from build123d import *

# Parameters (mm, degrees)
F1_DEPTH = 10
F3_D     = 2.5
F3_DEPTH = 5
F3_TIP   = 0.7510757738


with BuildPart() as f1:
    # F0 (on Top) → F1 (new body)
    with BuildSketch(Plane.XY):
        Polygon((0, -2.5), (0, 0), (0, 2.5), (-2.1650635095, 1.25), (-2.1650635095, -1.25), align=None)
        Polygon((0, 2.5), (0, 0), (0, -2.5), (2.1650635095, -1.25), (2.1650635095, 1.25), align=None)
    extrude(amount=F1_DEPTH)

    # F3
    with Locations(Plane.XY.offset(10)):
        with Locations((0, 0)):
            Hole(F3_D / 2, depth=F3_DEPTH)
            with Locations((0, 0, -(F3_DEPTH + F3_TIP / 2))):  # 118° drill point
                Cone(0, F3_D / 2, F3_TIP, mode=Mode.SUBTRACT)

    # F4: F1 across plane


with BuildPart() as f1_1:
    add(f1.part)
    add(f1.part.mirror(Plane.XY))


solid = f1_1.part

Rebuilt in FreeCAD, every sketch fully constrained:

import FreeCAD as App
import Part
import Sketcher

V = App.Vector
Q = App.Units.Quantity


def add_polygon(sketch, points):
    """Adds a closed chain of lines whose ends are joined by coincident constraints."""
    first, n = sketch.GeometryCount, len(points)
    for a, b in zip(points, points[1:] + points[:1]):
        sketch.addGeometry(Part.LineSegment(App.Vector(*a, 0), App.Vector(*b, 0)), False)
    for i in range(n):
        sketch.addConstraint(Sketcher.Constraint("Coincident", first + i, 2, first + (i + 1) % n, 1))

doc = App.newDocument("Part")
params = doc.addObject("Spreadsheet::Sheet", "Params")
for row, (alias, value) in enumerate([
    ("sketch1_height", "2.5 mm"),
    ("pad1_length", "10 mm"),
    ("sketch2_diameter", "2.5 mm"),
    ("hole_diameter", "2.5 mm"),
    ("hole_depth", "5 mm"),
], start=1):
    params.set(f"A{row}", alias)
    params.set(f"B{row}", "=" + value)
    params.setAlias(f"B{row}", alias)

body = doc.addObject("PartDesign::Body", "Body")

# Sketch on XY plane
sketch1 = body.newObject("Sketcher::SketchObject", "Sketch")
sketch1.AttachmentSupport = (doc.getObject("XY_Plane"), [""])
sketch1.MapMode = "FlatFace"
add_polygon(sketch1, [(0, 2.5), (-2.2, 1.2), (-2.2, -1.2), (0, -2.5), (2.2, -1.2), (2.2, 1.2)])  # lines 0-5
sketch1.addConstraint([
    Sketcher.Constraint("Vertical", 1),
    Sketcher.Constraint("Vertical", 4),
    Sketcher.Constraint("Symmetric", 0, 2, 3, 2, -1, 1),
    Sketcher.Constraint("Symmetric", 2, 2, 5, 2, -1, 1),
    Sketcher.Constraint("PointOnObject", 2, 2, -2),
    Sketcher.Constraint("Parallel", 2, 5),
    Sketcher.Constraint("Horizontal", 1, 2, 3, 2),
    Sketcher.Constraint("Angle", 0, Q("-150 deg")),
    Sketcher.Constraint("DistanceY", 1, 2, 1, 1, 2.5),
    Sketcher.Constraint("DistanceY", 2, 2, 5, 2, 5.0),
])
sketch1.setExpression("Constraints[14]", "Params.sketch1_height")
pad1 = body.newObject("PartDesign::Pad", "Pad")
pad1.Profile = sketch1
pad1.setExpression("Length", "Params.pad1_length")

# Sketch on XY plane
sketch2 = body.newObject("Sketcher::SketchObject", "Sketch001")
sketch2.AttachmentSupport = (doc.getObject("XY_Plane"), [""])
sketch2.MapMode = "FlatFace"
sketch2.AttachmentOffset = App.Placement(V(0, 0, 10), App.Rotation())
sketch2.addGeometry(Part.Circle(V(0, 0, 0), V(0, 0, 1), 1.2), False)
sketch2.addConstraint([
    Sketcher.Constraint("Coincident", 0, 3, -1, 1),
    Sketcher.Constraint("Diameter", 0, 2.5),
])
sketch2.setExpression("Constraints[1]", "Params.sketch2_diameter")
doc.recompute()
hole = body.newObject("PartDesign::Hole", "Hole")
hole.Profile = sketch2
hole.ThreadType = "None"
hole.setExpression("Diameter", "Params.hole_diameter")
hole.DepthType = "Dimension"
hole.setExpression("Depth", "Params.hole_depth")
hole.DrillPoint = "Angled"
hole.DrillPointAngle = 118
body2 = doc.addObject("PartDesign::Body", "Body001")
doc.recompute()

body2.BaseFeature = body
doc.recompute()

mirroring = doc.addObject("Part::Mirroring", "Mirroring")
mirroring.Source = body
mirroring.Base = V(0, 0, 0)
mirroring.Normal = V(0, 0, 1)
body3 = doc.addObject("PartDesign::Body", "Body002")
body3.BaseFeature = mirroring
boolean = body2.newObject("PartDesign::Boolean", "Boolean")
boolean.Type = "Fuse"
boolean.addObjects([body3])
doc.recompute()
mirroring.Visibility = False

doc.recompute()
